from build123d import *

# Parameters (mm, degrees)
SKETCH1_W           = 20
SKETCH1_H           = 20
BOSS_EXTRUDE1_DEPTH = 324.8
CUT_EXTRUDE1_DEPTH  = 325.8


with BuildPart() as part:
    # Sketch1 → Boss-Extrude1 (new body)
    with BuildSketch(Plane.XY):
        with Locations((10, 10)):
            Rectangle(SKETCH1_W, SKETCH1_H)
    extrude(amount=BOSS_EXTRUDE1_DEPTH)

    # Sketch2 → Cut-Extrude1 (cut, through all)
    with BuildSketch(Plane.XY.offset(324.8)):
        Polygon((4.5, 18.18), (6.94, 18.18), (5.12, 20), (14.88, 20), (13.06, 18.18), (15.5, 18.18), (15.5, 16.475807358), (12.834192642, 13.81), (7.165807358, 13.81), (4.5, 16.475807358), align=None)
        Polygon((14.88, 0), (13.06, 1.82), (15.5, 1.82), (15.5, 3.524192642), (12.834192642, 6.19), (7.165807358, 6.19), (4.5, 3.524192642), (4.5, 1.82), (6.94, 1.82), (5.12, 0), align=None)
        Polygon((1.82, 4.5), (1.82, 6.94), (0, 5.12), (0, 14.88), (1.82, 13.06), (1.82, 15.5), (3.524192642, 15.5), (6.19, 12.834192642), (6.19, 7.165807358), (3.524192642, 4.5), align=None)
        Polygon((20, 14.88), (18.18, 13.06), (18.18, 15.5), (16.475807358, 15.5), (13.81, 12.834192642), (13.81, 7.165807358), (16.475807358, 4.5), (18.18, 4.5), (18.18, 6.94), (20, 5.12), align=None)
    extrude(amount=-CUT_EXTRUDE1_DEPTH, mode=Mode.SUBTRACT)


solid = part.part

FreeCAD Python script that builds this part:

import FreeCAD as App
import Part
import Sketcher
Q = App.Units.Quantity

doc = App.newDocument("Part")
body = doc.addObject("PartDesign::Body", "Body")

# Sketch on XY plane
sketch1 = doc.addObject("Sketcher::SketchObject", "Sketch")
body.addObject(sketch1)
sketch1.AttachmentSupport = (doc.XY_Plane, [""])
sketch1.MapMode = "FlatFace"
sketch1.addGeometry(Part.LineSegment(App.Vector(0, 20, 0), App.Vector(0, 0, 0)), False)
sketch1.addGeometry(Part.LineSegment(App.Vector(0, 0, 0), App.Vector(20, 0, 0)), False)
sketch1.addGeometry(Part.LineSegment(App.Vector(20, 0, 0), App.Vector(20, 20, 0)), False)
sketch1.addGeometry(Part.LineSegment(App.Vector(20, 20, 0), App.Vector(0, 20, 0)), False)
sketch1.addConstraint(Sketcher.Constraint("Coincident", 0, 2, 1, 1))
sketch1.addConstraint(Sketcher.Constraint("Coincident", 1, 2, 2, 1))
sketch1.addConstraint(Sketcher.Constraint("Coincident", 2, 2, 3, 1))
sketch1.addConstraint(Sketcher.Constraint("Coincident", 3, 2, 0, 1))
sketch1.addConstraint(Sketcher.Constraint("Vertical", 0))
sketch1.addConstraint(Sketcher.Constraint("Horizontal", 1))
sketch1.addConstraint(Sketcher.Constraint("Vertical", 2))
sketch1.addConstraint(Sketcher.Constraint("Horizontal", 3))
sketch1.addConstraint(Sketcher.Constraint("Coincident", 0, 2, -1, 1))
sketch1.addConstraint(Sketcher.Constraint("Equal", 3, 0))
sketch1.addConstraint(Sketcher.Constraint("DistanceX", 1, 1, 1, 2, Q("20 mm")))
pad1 = doc.addObject("PartDesign::Pad", "Pad")
body.addObject(pad1)
pad1.Profile = sketch1
pad1.Length = 324.8

# Sketch on XY plane
sketch2 = doc.addObject("Sketcher::SketchObject", "Sketch001")
body.addObject(sketch2)
sketch2.AttachmentSupport = (doc.XY_Plane, [""])
sketch2.MapMode = "FlatFace"
sketch2.AttachmentOffset = App.Placement(App.Vector(0, 0, 324.8), App.Rotation())
sketch2.addGeometry(Part.LineSegment(App.Vector(6.9, 18.2, 0), App.Vector(4.5, 18.2, 0)), False)
sketch2.addGeometry(Part.LineSegment(App.Vector(4.5, 18.2, 0), App.Vector(4.5, 16.5, 0)), False)
sketch2.addGeometry(Part.LineSegment(App.Vector(4.5, 16.5, 0), App.Vector(7.2, 13.8, 0)), False)
sketch2.addGeometry(Part.LineSegment(App.Vector(7.2, 13.8, 0), App.Vector(12.8, 13.8, 0)), False)
sketch2.addGeometry(Part.LineSegment(App.Vector(12.8, 13.8, 0), App.Vector(15.5, 16.5, 0)), False)
sketch2.addGeometry(Part.LineSegment(App.Vector(15.5, 16.5, 0), App.Vector(15.5, 18.2, 0)), False)
sketch2.addGeometry(Part.LineSegment(App.Vector(15.5, 18.2, 0), App.Vector(13.1, 18.2, 0)), False)
sketch2.addGeometry(Part.LineSegment(App.Vector(13.1, 18.2, 0), App.Vector(14.9, 20, 0)), False)
sketch2.addGeometry(Part.LineSegment(App.Vector(14.9, 20, 0), App.Vector(5.1, 20, 0)), False)
sketch2.addGeometry(Part.LineSegment(App.Vector(5.1, 20, 0), App.Vector(6.9, 18.2, 0)), False)
sketch2.addGeometry(Part.LineSegment(App.Vector(14.9, 0, 0), App.Vector(13.1, 1.8, 0)), False)
sketch2.addGeometry(Part.LineSegment(App.Vector(13.1, 1.8, 0), App.Vector(15.5, 1.8, 0)), False)
sketch2.addGeometry(Part.LineSegment(App.Vector(15.5, 1.8, 0), App.Vector(15.5, 3.5, 0)), False)
sketch2.addGeometry(Part.LineSegment(App.Vector(15.5, 3.5, 0), App.Vector(12.8, 6.2, 0)), False)
sketch2.addGeometry(Part.LineSegment(App.Vector(12.8, 6.2, 0), App.Vector(7.2, 6.2, 0)), False)
sketch2.addGeometry(Part.LineSegment(App.Vector(7.2, 6.2, 0), App.Vector(4.5, 3.5, 0)), False)
sketch2.addGeometry(Part.LineSegment(App.Vector(4.5, 3.5, 0), App.Vector(4.5, 1.8, 0)), False)
sketch2.addGeometry(Part.LineSegment(App.Vector(4.5, 1.8, 0), App.Vector(6.9, 1.8, 0)), False)
sketch2.addGeometry(Part.LineSegment(App.Vector(6.9, 1.8, 0), App.Vector(5.1, 0, 0)), False)
sketch2.addGeometry(Part.LineSegment(App.Vector(5.1, 0, 0), App.Vector(14.9, 0, 0)), False)
sketch2.addGeometry(Part.LineSegment(App.Vector(1.8, 6.9, 0), App.Vector(1.8, 4.5, 0)), False)
sketch2.addGeometry(Part.LineSegment(App.Vector(1.8, 4.5, 0), App.Vector(3.5, 4.5, 0)), False)
sketch2.addGeometry(Part.LineSegment(App.Vector(3.5, 4.5, 0), App.Vector(6.2, 7.2, 0)), False)
sketch2.addGeometry(Part.LineSegment(App.Vector(6.2, 7.2, 0), App.Vector(6.2, 12.8, 0)), False)
sketch2.addGeometry(Part.LineSegment(App.Vector(6.2, 12.8, 0), App.Vector(3.5, 15.5, 0)), False)
sketch2.addGeometry(Part.LineSegment(App.Vector(3.5, 15.5, 0), App.Vector(1.8, 15.5, 0)), False)
sketch2.addGeometry(Part.LineSegment(App.Vector(1.8, 15.5, 0), App.Vector(1.8, 13.1, 0)), False)
sketch2.addGeometry(Part.LineSegment(App.Vector(1.8, 13.1, 0), App.Vector(0, 14.9, 0)), False)
sketch2.addGeometry(Part.LineSegment(App.Vector(0, 14.9, 0), App.Vector(0, 5.1, 0)), False)
sketch2.addGeometry(Part.LineSegment(App.Vector(0, 5.1, 0), App.Vector(1.8, 6.9, 0)), False)
sketch2.addGeometry(Part.LineSegment(App.Vector(20, 14.9, 0), App.Vector(18.2, 13.1, 0)), False)
sketch2.addGeometry(Part.LineSegment(App.Vector(18.2, 13.1, 0), App.Vector(18.2, 15.5, 0)), False)
sketch2.addGeometry(Part.LineSegment(App.Vector(18.2, 15.5, 0), App.Vector(16.5, 15.5, 0)), False)
sketch2.addGeometry(Part.LineSegment(App.Vector(16.5, 15.5, 0), App.Vector(13.8, 12.8, 0)), False)
sketch2.addGeometry(Part.LineSegment(App.Vector(13.8, 12.8, 0), App.Vector(13.8, 7.2, 0)), False)
sketch2.addGeometry(Part.LineSegment(App.Vector(13.8, 7.2, 0), App.Vector(16.5, 4.5, 0)), False)
sketch2.addGeometry(Part.LineSegment(App.Vector(16.5, 4.5, 0), App.Vector(18.2, 4.5, 0)), False)
sketch2.addGeometry(Part.LineSegment(App.Vector(18.2, 4.5, 0), App.Vector(18.2, 6.9, 0)), False)
sketch2.addGeometry(Part.LineSegment(App.Vector(18.2, 6.9, 0), App.Vector(20, 5.1, 0)), False)
sketch2.addGeometry(Part.LineSegment(App.Vector(20, 5.1, 0), App.Vector(20, 14.9, 0)), False)
sketch2.addConstraint(Sketcher.Constraint("Coincident", 0, 2, 1, 1))
sketch2.addConstraint(Sketcher.Constraint("Coincident", 1, 2, 2, 1))
sketch2.addConstraint(Sketcher.Constraint("Coincident", 2, 2, 3, 1))
sketch2.addConstraint(Sketcher.Constraint("Coincident", 3, 2, 4, 1))
sketch2.addConstraint(Sketcher.Constraint("Coincident", 4, 2, 5, 1))
sketch2.addConstraint(Sketcher.Constraint("Coincident", 5, 2, 6, 1))
sketch2.addConstraint(Sketcher.Constraint("Coincident", 6, 2, 7, 1))
sketch2.addConstraint(Sketcher.Constraint("Coincident", 7, 2, 8, 1))
sketch2.addConstraint(Sketcher.Constraint("Coincident", 8, 2, 9, 1))
sketch2.addConstraint(Sketcher.Constraint("Coincident", 9, 2, 0, 1))
sketch2.addConstraint(Sketcher.Constraint("Coincident", 10, 2, 11, 1))
sketch2.addConstraint(Sketcher.Constraint("Coincident", 11, 2, 12, 1))
sketch2.addConstraint(Sketcher.Constraint("Coincident", 12, 2, 13, 1))
sketch2.addConstraint(Sketcher.Constraint("Coincident", 13, 2, 14, 1))
sketch2.addConstraint(Sketcher.Constraint("Coincident", 14, 2, 15, 1))
sketch2.addConstraint(Sketcher.Constraint("Coincident", 15, 2, 16, 1))
sketch2.addConstraint(Sketcher.Constraint("Coincident", 16, 2, 17, 1))
sketch2.addConstraint(Sketcher.Constraint("Coincident", 17, 2, 18, 1))
sketch2.addConstraint(Sketcher.Constraint("Coincident", 18, 2, 19, 1))
sketch2.addConstraint(Sketcher.Constraint("Coincident", 19, 2, 10, 1))
sketch2.addConstraint(Sketcher.Constraint("Coincident", 20, 2, 21, 1))
sketch2.addConstraint(Sketcher.Constraint("Coincident", 21, 2, 22, 1))
sketch2.addConstraint(Sketcher.Constraint("Coincident", 22, 2, 23, 1))
sketch2.addConstraint(Sketcher.Constraint("Coincident", 23, 2, 24, 1))
sketch2.addConstraint(Sketcher.Constraint("Coincident", 24, 2, 25, 1))
sketch2.addConstraint(Sketcher.Constraint("Coincident", 25, 2, 26, 1))
sketch2.addConstraint(Sketcher.Constraint("Coincident", 26, 2, 27, 1))
sketch2.addConstraint(Sketcher.Constraint("Coincident", 27, 2, 28, 1))
sketch2.addConstraint(Sketcher.Constraint("Coincident", 28, 2, 29, 1))
sketch2.addConstraint(Sketcher.Constraint("Coincident", 29, 2, 20, 1))
sketch2.addConstraint(Sketcher.Constraint("Coincident", 30, 2, 31, 1))
sketch2.addConstraint(Sketcher.Constraint("Coincident", 31, 2, 32, 1))
sketch2.addConstraint(Sketcher.Constraint("Coincident", 32, 2, 33, 1))
sketch2.addConstraint(Sketcher.Constraint("Coincident", 33, 2, 34, 1))
sketch2.addConstraint(Sketcher.Constraint("Coincident", 34, 2, 35, 1))
sketch2.addConstraint(Sketcher.Constraint("Coincident", 35, 2, 36, 1))
sketch2.addConstraint(Sketcher.Constraint("Coincident", 36, 2, 37, 1))
sketch2.addConstraint(Sketcher.Constraint("Coincident", 37, 2, 38, 1))
sketch2.addConstraint(Sketcher.Constraint("Coincident", 38, 2, 39, 1))
sketch2.addConstraint(Sketcher.Constraint("Coincident", 39, 2, 30, 1))
sketch2.addConstraint(Sketcher.Constraint("Horizontal", 0))
sketch2.addConstraint(Sketcher.Constraint("Vertical", 1))
sketch2.addConstraint(Sketcher.Constraint("Horizontal", 3))
sketch2.addConstraint(Sketcher.Constraint("Vertical", 5))
sketch2.addConstraint(Sketcher.Constraint("Horizontal", 6))
sketch2.addConstraint(Sketcher.Constraint("Horizontal", 8))
sketch2.addConstraint(Sketcher.Constraint("Horizontal", 11))
sketch2.addConstraint(Sketcher.Constraint("Vertical", 12))
sketch2.addConstraint(Sketcher.Constraint("Horizontal", 14))
sketch2.addConstraint(Sketcher.Constraint("Vertical", 16))
sketch2.addConstraint(Sketcher.Constraint("Horizontal", 17))
sketch2.addConstraint(Sketcher.Constraint("Horizontal", 19))
sketch2.addConstraint(Sketcher.Constraint("Vertical", 20))
sketch2.addConstraint(Sketcher.Constraint("Horizontal", 21))
sketch2.addConstraint(Sketcher.Constraint("Vertical", 23))
sketch2.addConstraint(Sketcher.Constraint("Horizontal", 25))
sketch2.addConstraint(Sketcher.Constraint("Vertical", 26))
sketch2.addConstraint(Sketcher.Constraint("Vertical", 28))
sketch2.addConstraint(Sketcher.Constraint("Vertical", 31))
sketch2.addConstraint(Sketcher.Constraint("Horizontal", 32))
sketch2.addConstraint(Sketcher.Constraint("Vertical", 34))
sketch2.addConstraint(Sketcher.Constraint("Horizontal", 36))
sketch2.addConstraint(Sketcher.Constraint("Vertical", 37))
sketch2.addConstraint(Sketcher.Constraint("Vertical", 39))
sketch2.addConstraint(Sketcher.Constraint("PointOnObject", 18, 2, -1))
sketch2.addConstraint(Sketcher.Constraint("PointOnObject", 27, 2, -2))
sketch2.addConstraint(Sketcher.Constraint("Perpendicular", 2, 4))
sketch2.addConstraint(Sketcher.Constraint("Parallel", 4, 7))
sketch2.addConstraint(Sketcher.Constraint("Perpendicular", 7, 9))
sketch2.addConstraint(Sketcher.Constraint("Parallel", 9, 10))
sketch2.addConstraint(Sketcher.Constraint("Parallel", 10, 13))
sketch2.addConstraint(Sketcher.Constraint("Perpendicular", 13, 15))
sketch2.addConstraint(Sketcher.Constraint("Parallel", 15, 18))
sketch2.addConstraint(Sketcher.Constraint("Parallel", 18, 22))
sketch2.addConstraint(Sketcher.Constraint("Perpendicular", 22, 24))
sketch2.addConstraint(Sketcher.Constraint("Parallel", 24, 27))
sketch2.addConstraint(Sketcher.Constraint("Perpendicular", 27, 29))
sketch2.addConstraint(Sketcher.Constraint("Parallel", 29, 30))
sketch2.addConstraint(Sketcher.Constraint("Parallel", 30, 33))
sketch2.addConstraint(Sketcher.Constraint("Perpendicular", 33, 35))
sketch2.addConstraint(Sketcher.Constraint("Parallel", 35, 38))
sketch2.addConstraint(Sketcher.Constraint("Horizontal", 1, 2, 4, 2))
sketch2.addConstraint(Sketcher.Constraint("Horizontal", 0, 2, 5, 2))
sketch2.addConstraint(Sketcher.Constraint("Horizontal", 12, 2, 15, 2))
sketch2.addConstraint(Sketcher.Constraint("Horizontal", 11, 2, 16, 2))
sketch2.addConstraint(Sketcher.Constraint("Horizontal", 26, 2, 30, 2))
sketch2.addConstraint(Sketcher.Constraint("Horizontal", 25, 2, 31, 2))
sketch2.addConstraint(Sketcher.Constraint("Horizontal", 23, 2, 33, 2))
sketch2.addConstraint(Sketcher.Constraint("Horizontal", 22, 2, 34, 2))
sketch2.addConstraint(Sketcher.Constraint("Horizontal", 21, 2, 35, 2))
sketch2.addConstraint(Sketcher.Constraint("Horizontal", 29, 2, 37, 2))
sketch2.addConstraint(Sketcher.Constraint("Horizontal", 28, 2, 38, 2))
sketch2.addConstraint(Sketcher.Constraint("Horizontal", 27, 2, 39, 2))
sketch2.addConstraint(Sketcher.Constraint("Vertical", 6, 2, 10, 2))
sketch2.addConstraint(Sketcher.Constraint("Vertical", 5, 2, 11, 2))
sketch2.addConstraint(Sketcher.Constraint("Vertical", 3, 2, 13, 2))
sketch2.addConstraint(Sketcher.Constraint("Vertical", 2, 2, 14, 2))
sketch2.addConstraint(Sketcher.Constraint("Vertical", 1, 2, 15, 2))
sketch2.addConstraint(Sketcher.Constraint("Vertical", 9, 2, 17, 2))
sketch2.addConstraint(Sketcher.Constraint("Vertical", 8, 2, 18, 2))
sketch2.addConstraint(Sketcher.Constraint("Vertical", 21, 2, 24, 2))
sketch2.addConstraint(Sketcher.Constraint("Vertical", 20, 2, 25, 2))
sketch2.addConstraint(Sketcher.Constraint("Equal", 0, 6))
sketch2.addConstraint(Sketcher.Constraint("Equal", 25, 32))
sketch2.addConstraint(Sketcher.Constraint("Equal", 36, 1))
sketch2.addConstraint(Sketcher.Constraint("Equal", 5, 12))
sketch2.addConstraint(Sketcher.Constraint("Equal", 17, 20))
sketch2.addConstraint(Sketcher.Constraint("Equal", 14, 23))
sketch2.addConstraint(Sketcher.Constraint("Equal", 20, 26))
sketch2.addConstraint(Sketcher.Constraint("Equal", 19, 28))
sketch2.addConstraint(Sketcher.Constraint("Equal", 15, 22))
sketch2.addConstraint(Sketcher.Constraint("DistanceY", -1, 1, 7, 2, Q("20 mm")))
sketch2.addConstraint(Sketcher.Constraint("DistanceX", -1, 1, 38, 2, Q("20 mm")))
sketch2.addConstraint(Sketcher.Constraint("DistanceX", 1, 2, 4, 2, Q("11 mm")))
sketch2.addConstraint(Sketcher.Constraint("DistanceX", 0, 2, 0, 1, Q("2.44 mm")))
sketch2.addConstraint(Sketcher.Constraint("DistanceX", 8, 2, 8, 1, Q("9.76 mm")))
sketch2.addConstraint(Sketcher.Constraint("DistanceX", -1, 1, 0, 2, Q("4.5 mm")))
sketch2.addConstraint(Sketcher.Constraint("DistanceY", -1, 1, 20, 2, Q("4.5 mm")))
sketch2.addConstraint(Sketcher.Constraint("DistanceY", -1, 1, 2, 2, Q("13.81 mm")))
sketch2.addConstraint(Sketcher.Constraint("Distance", 2, Q("3.770021 mm")))
pocket1 = doc.addObject("PartDesign::Pocket", "Pocket")
body.addObject(pocket1)
pocket1.Profile = sketch2
pocket1.Type = "ThroughAll"

doc.recompute()
